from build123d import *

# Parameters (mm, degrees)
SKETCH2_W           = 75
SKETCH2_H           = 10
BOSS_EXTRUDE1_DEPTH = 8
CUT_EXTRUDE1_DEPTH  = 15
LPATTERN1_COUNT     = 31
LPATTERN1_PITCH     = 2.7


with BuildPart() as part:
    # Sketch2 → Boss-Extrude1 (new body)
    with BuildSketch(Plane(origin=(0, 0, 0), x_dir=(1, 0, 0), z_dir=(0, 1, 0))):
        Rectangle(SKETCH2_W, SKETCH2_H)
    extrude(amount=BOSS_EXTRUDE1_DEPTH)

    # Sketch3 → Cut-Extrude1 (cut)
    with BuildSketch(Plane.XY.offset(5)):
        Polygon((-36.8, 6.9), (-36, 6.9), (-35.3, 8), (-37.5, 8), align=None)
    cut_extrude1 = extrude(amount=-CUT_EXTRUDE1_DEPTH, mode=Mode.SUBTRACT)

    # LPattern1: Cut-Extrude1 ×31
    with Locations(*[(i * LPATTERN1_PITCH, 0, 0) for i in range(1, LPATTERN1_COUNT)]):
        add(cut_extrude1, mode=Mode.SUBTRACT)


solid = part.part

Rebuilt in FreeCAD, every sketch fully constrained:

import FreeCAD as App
import Part
import Sketcher

V = App.Vector


def add_polygon(sketch, points):
    """Adds a closed chain of lines whose ends are joined by coincident constraints."""
    first, n = sketch.GeometryCount, len(points)
    for a, b in zip(points, points[1:] + points[:1]):
        sketch.addGeometry(Part.LineSegment(App.Vector(*a, 0), App.Vector(*b, 0)), False)
    for i in range(n):
        sketch.addConstraint(Sketcher.Constraint("Coincident", first + i, 2, first + (i + 1) % n, 1))

doc = App.newDocument("Part")
body = doc.addObject("PartDesign::Body", "Body")

sketch1 = body.newObject("Sketcher::SketchObject", "Sketch")
sketch1.AttachmentSupport = (doc.getObject("XZ_Plane"), [""])
sketch1.MapMode = "FlatFace"
add_polygon(sketch1, [(-38, -5), (-38, 5), (38, 5), (38, -5)])
sketch1.addConstraint(Sketcher.Constraint("Vertical", 0))
sketch1.addConstraint(Sketcher.Constraint("Horizontal", 1))
sketch1.addConstraint(Sketcher.Constraint("Vertical", 2))
sketch1.addConstraint(Sketcher.Constraint("Horizontal", 3))
sketch1.addConstraint(Sketcher.Constraint("Symmetric", 0, 2, 2, 2, -1, 1))
sketch1.addConstraint(Sketcher.Constraint("DistanceX", 1, 1, 1, 2, 75.0))
sketch1.addConstraint(Sketcher.Constraint("DistanceY", 0, 1, 0, 2, 10.0))
pad1 = body.newObject("PartDesign::Pad", "Pad")
pad1.Profile = sketch1
pad1.Length = 8
pad1.Reversed = True

sketch2 = body.newObject("Sketcher::SketchObject", "Sketch001")
sketch2.AttachmentSupport = (doc.getObject("XY_Plane"), [""])
sketch2.MapMode = "FlatFace"
sketch2.AttachmentOffset = App.Placement(V(0, 0, 5), App.Rotation())
add_polygon(sketch2, [(-36.8, 6.9), (-36, 6.9), (-35.3, 8), (-37.5, 8)])
sketch2.addConstraint(Sketcher.Constraint("Horizontal", 0))
sketch2.addConstraint(Sketcher.Constraint("Horizontal", 2))
sketch2.addConstraint(Sketcher.Constraint("Equal", 1, 3))
sketch2.addConstraint(Sketcher.Constraint("DistanceX", 0, 1, 0, 2, 0.8))
sketch2.addConstraint(Sketcher.Constraint("DistanceX", 2, 2, 2, 1, 2.2))
sketch2.addConstraint(Sketcher.Constraint("DistanceX", 0, 2, -1, 1, 36.0))
sketch2.addConstraint(Sketcher.Constraint("DistanceY", -1, 1, 1, 2, 8.0))
sketch2.addConstraint(Sketcher.Constraint("DistanceY", -1, 1, 0, 2, 6.9))
pocket1 = body.newObject("PartDesign::Pocket", "Pocket")
pocket1.Profile = sketch2
pocket1.Length = 15
doc.recompute()

linearpattern = body.newObject("PartDesign::LinearPattern", "LinearPattern")
linearpattern.Originals = [pocket1]
linearpattern.Direction = (doc.getObject("X_Axis"), [""])
linearpattern.Mode = "offset"
linearpattern.Offset = 2.7
linearpattern.Occurrences = 31
body.Tip = linearpattern

doc.recompute()
